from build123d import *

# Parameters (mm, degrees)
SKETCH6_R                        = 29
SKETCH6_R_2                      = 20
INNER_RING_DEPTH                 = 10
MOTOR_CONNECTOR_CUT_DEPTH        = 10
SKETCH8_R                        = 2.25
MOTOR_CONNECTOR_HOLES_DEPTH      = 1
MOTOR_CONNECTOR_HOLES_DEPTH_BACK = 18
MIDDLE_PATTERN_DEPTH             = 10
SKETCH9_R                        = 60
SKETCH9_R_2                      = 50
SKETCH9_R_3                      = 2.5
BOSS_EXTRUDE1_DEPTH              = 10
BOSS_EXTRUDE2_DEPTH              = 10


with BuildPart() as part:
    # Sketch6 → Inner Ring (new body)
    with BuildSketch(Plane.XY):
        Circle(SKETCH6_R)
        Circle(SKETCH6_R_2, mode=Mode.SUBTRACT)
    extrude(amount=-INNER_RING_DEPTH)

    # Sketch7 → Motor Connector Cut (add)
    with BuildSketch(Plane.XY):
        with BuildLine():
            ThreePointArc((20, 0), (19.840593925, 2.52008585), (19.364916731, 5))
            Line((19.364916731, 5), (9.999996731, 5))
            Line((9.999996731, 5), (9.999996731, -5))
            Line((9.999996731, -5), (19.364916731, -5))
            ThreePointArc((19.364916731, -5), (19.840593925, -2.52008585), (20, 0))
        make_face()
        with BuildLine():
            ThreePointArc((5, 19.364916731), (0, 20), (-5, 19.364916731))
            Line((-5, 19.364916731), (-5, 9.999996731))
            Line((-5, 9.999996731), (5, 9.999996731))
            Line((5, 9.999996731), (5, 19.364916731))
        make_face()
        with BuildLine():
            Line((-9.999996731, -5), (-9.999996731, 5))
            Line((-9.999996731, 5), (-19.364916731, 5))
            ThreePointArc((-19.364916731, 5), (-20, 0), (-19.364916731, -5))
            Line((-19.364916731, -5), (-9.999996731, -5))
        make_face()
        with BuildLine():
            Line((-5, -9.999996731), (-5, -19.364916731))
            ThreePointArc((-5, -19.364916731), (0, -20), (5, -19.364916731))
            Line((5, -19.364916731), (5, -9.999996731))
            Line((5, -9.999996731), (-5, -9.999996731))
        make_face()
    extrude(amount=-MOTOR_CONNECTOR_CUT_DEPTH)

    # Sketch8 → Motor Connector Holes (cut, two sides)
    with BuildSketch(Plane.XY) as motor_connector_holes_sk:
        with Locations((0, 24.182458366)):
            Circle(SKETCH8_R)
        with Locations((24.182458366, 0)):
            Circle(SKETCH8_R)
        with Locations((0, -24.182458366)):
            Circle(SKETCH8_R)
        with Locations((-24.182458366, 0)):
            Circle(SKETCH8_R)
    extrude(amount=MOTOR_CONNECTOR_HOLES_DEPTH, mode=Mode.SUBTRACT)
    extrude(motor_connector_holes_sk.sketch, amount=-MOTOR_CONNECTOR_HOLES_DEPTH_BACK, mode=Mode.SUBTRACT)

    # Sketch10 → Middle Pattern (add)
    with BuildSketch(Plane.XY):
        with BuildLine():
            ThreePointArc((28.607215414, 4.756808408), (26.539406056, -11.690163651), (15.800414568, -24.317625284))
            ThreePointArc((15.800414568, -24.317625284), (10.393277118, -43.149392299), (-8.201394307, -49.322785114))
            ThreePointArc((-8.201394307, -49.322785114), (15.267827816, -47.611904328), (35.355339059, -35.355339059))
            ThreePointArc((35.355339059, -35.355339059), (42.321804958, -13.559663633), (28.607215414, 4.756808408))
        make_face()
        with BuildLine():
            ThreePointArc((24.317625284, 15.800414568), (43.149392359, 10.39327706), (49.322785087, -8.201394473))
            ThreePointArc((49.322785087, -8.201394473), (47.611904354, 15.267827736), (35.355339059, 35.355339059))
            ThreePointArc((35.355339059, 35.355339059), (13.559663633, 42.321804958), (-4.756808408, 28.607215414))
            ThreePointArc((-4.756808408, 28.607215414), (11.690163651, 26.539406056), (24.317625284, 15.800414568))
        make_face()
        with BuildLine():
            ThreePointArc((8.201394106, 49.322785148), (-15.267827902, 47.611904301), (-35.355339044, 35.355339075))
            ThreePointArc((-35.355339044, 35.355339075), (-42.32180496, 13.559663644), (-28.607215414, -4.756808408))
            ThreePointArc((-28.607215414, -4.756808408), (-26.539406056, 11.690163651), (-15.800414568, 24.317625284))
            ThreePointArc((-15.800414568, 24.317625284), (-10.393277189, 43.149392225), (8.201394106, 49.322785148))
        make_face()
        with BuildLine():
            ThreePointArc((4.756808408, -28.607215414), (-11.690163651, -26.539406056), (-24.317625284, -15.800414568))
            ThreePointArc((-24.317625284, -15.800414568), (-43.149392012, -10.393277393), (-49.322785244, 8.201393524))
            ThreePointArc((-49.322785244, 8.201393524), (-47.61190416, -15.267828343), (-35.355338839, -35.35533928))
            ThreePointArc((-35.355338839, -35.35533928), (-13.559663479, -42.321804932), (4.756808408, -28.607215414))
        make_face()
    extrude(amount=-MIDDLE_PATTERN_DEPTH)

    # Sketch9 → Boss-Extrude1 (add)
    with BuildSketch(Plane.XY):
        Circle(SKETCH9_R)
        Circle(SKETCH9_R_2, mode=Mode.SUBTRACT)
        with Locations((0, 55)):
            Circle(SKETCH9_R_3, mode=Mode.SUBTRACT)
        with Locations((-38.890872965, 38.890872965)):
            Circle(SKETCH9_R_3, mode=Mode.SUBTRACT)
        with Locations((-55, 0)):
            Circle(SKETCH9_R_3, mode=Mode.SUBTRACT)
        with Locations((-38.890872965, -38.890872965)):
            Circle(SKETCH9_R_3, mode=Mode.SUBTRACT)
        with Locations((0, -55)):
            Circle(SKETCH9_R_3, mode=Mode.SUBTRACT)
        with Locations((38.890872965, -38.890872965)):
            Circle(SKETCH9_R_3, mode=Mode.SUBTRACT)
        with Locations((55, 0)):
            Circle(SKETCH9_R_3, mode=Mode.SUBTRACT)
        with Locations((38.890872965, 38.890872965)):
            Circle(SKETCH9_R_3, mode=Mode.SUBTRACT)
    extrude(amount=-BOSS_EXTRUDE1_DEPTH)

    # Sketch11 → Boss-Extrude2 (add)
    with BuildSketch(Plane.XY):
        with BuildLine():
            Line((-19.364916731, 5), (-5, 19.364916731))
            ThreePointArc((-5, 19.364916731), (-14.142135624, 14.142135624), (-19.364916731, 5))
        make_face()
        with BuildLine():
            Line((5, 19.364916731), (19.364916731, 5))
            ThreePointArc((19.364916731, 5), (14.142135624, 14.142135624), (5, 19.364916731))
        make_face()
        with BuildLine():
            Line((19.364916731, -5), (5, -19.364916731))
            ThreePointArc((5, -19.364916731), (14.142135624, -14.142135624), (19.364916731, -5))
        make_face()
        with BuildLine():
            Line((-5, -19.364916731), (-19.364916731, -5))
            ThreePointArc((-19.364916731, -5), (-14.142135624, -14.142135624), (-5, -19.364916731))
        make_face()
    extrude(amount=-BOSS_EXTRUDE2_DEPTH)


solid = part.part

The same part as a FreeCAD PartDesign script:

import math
import FreeCAD as App
import Part
import Sketcher

V = App.Vector

doc = App.newDocument("Part")
body = doc.addObject("PartDesign::Body", "Body")

# Sketch on XY plane
sketch1 = doc.addObject("Sketcher::SketchObject", "Sketch")
body.addObject(sketch1)
sketch1.AttachmentSupport = (doc.XY_Plane, [""])
sketch1.MapMode = "FlatFace"
sketch1.addGeometry(Part.Circle(V(0, 0, 0), V(0, 0, 1), 29), False)
sketch1.addGeometry(Part.Circle(V(0, 0, 0), V(0, 0, 1), 20), False)
sketch1.addConstraint(Sketcher.Constraint("Coincident", 0, 3, -1, 1))
sketch1.addConstraint(Sketcher.Constraint("Coincident", 1, 3, -1, 1))
sketch1.addConstraint(Sketcher.Constraint("Diameter", 0, 58.0))
sketch1.addConstraint(Sketcher.Constraint("Diameter", 1, 40.0))
pad1 = doc.addObject("PartDesign::Pad", "Pad")
body.addObject(pad1)
pad1.Profile = sketch1
pad1.Length = 10
pad1.Reversed = True

# Sketch on XY plane
sketch2 = doc.addObject("Sketcher::SketchObject", "Sketch001")
body.addObject(sketch2)
sketch2.AttachmentSupport = (doc.XY_Plane, [""])
sketch2.MapMode = "FlatFace"
sketch2.addGeometry(Part.ArcOfCircle(Part.Circle(V(0, 0, 0), V(0, 0, 1), 20), math.radians(0), math.radians(14.477512)), False)
sketch2.addGeometry(Part.LineSegment(V(19.364917, 5, 0), V(9.999997, 5, 0)), False)
sketch2.addGeometry(Part.LineSegment(V(9.999997, 5, 0), V(9.999997, -5, 0)), False)
sketch2.addGeometry(Part.LineSegment(V(9.999997, -5, 0), V(19.364917, -5, 0)), False)
sketch2.addGeometry(Part.ArcOfCircle(Part.Circle(V(0, 0, 0), V(0, 0, 1), 20), math.radians(-14.477512), math.radians(0)), False)
sketch2.addGeometry(Part.ArcOfCircle(Part.Circle(V(0, 0, 0), V(0, 0, 1), 20), math.radians(75.522488), math.radians(104.477512)), False)
sketch2.addGeometry(Part.LineSegment(V(-5, 19.364917, 0), V(-5, 9.999997, 0)), False)
sketch2.addGeometry(Part.LineSegment(V(-5, 9.999997, 0), V(5, 9.999997, 0)), False)
sketch2.addGeometry(Part.LineSegment(V(5, 9.999997, 0), V(5, 19.364917, 0)), False)
sketch2.addGeometry(Part.LineSegment(V(-9.999997, -5, 0), V(-9.999997, 5, 0)), False)
sketch2.addGeometry(Part.LineSegment(V(-9.999997, 5, 0), V(-19.364917, 5, 0)), False)
sketch2.addGeometry(Part.ArcOfCircle(Part.Circle(V(0, 0, 0), V(0, 0, 1), 20), math.radians(165.522488), math.radians(194.477512)), False)
sketch2.addGeometry(Part.LineSegment(V(-19.364917, -5, 0), V(-9.999997, -5, 0)), False)
sketch2.addGeometry(Part.LineSegment(V(-5, -9.999997, 0), V(-5, -19.364917, 0)), False)
sketch2.addGeometry(Part.ArcOfCircle(Part.Circle(V(0, 0, 0), V(0, 0, 1), 20), math.radians(-104.477512), math.radians(-75.522488)), False)
sketch2.addGeometry(Part.LineSegment(V(5, -19.364917, 0), V(5, -9.999997, 0)), False)
sketch2.addGeometry(Part.LineSegment(V(5, -9.999997, 0), V(-5, -9.999997, 0)), False)
sketch2.addConstraint(Sketcher.Constraint("Coincident", 0, 2, 1, 1))
sketch2.addConstraint(Sketcher.Constraint("Coincident", 1, 2, 2, 1))
sketch2.addConstraint(Sketcher.Constraint("Coincident", 2, 2, 3, 1))
sketch2.addConstraint(Sketcher.Constraint("Coincident", 3, 2, 4, 1))
sketch2.addConstraint(Sketcher.Constraint("Tangent", 4, 2, 0, 1))
sketch2.addConstraint(Sketcher.Constraint("Coincident", 5, 2, 6, 1))
sketch2.addConstraint(Sketcher.Constraint("Coincident", 6, 2, 7, 1))
sketch2.addConstraint(Sketcher.Constraint("Coincident", 7, 2, 8, 1))
sketch2.addConstraint(Sketcher.Constraint("Coincident", 8, 2, 5, 1))
sketch2.addConstraint(Sketcher.Constraint("Coincident", 9, 2, 10, 1))
sketch2.addConstraint(Sketcher.Constraint("Coincident", 10, 2, 11, 1))
sketch2.addConstraint(Sketcher.Constraint("Coincident", 11, 2, 12, 1))
sketch2.addConstraint(Sketcher.Constraint("Coincident", 12, 2, 9, 1))
sketch2.addConstraint(Sketcher.Constraint("Coincident", 13, 2, 14, 1))
sketch2.addConstraint(Sketcher.Constraint("Coincident", 14, 2, 15, 1))
sketch2.addConstraint(Sketcher.Constraint("Coincident", 15, 2, 16, 1))
sketch2.addConstraint(Sketcher.Constraint("Coincident", 16, 2, 13, 1))
sketch2.addConstraint(Sketcher.Constraint("Horizontal", 1))
sketch2.addConstraint(Sketcher.Constraint("Vertical", 2))
sketch2.addConstraint(Sketcher.Constraint("Horizontal", 3))
sketch2.addConstraint(Sketcher.Constraint("Vertical", 6))
sketch2.addConstraint(Sketcher.Constraint("Horizontal", 7))
sketch2.addConstraint(Sketcher.Constraint("Vertical", 8))
sketch2.addConstraint(Sketcher.Constraint("Vertical", 9))
sketch2.addConstraint(Sketcher.Constraint("Horizontal", 10))
sketch2.addConstraint(Sketcher.Constraint("Horizontal", 12))
sketch2.addConstraint(Sketcher.Constraint("Vertical", 13))
sketch2.addConstraint(Sketcher.Constraint("Vertical", 15))
sketch2.addConstraint(Sketcher.Constraint("Horizontal", 16))
sketch2.addConstraint(Sketcher.Constraint("Coincident", 0, 3, -1, 1))
sketch2.addConstraint(Sketcher.Constraint("Coincident", 5, 3, -1, 1))
sketch2.addConstraint(Sketcher.Constraint("Coincident", 11, 3, -1, 1))
sketch2.addConstraint(Sketcher.Constraint("Coincident", 14, 3, -1, 1))
sketch2.addConstraint(Sketcher.Constraint("Equal", 0, 4))
sketch2.addConstraint(Sketcher.Constraint("Equal", 4, 5))
sketch2.addConstraint(Sketcher.Constraint("Equal", 5, 11))
sketch2.addConstraint(Sketcher.Constraint("Equal", 11, 14))
sketch2.addConstraint(Sketcher.Constraint("Symmetric", 2, 2, 9, 2, -1, 1))
sketch2.addConstraint(Sketcher.Constraint("Symmetric", 6, 2, 15, 2, -1, 1))
sketch2.addConstraint(Sketcher.Constraint("PointOnObject", 4, 2, -1))
sketch2.addConstraint(Sketcher.Constraint("Horizontal", 5, 2, 8, 2))
sketch2.addConstraint(Sketcher.Constraint("Horizontal", 1, 2, 9, 2))
sketch2.addConstraint(Sketcher.Constraint("Horizontal", 3, 2, 11, 2))
sketch2.addConstraint(Sketcher.Constraint("Horizontal", 13, 2, 14, 2))
sketch2.addConstraint(Sketcher.Constraint("Equal", 16, 2))
sketch2.addConstraint(Sketcher.Constraint("Equal", 12, 6))
sketch2.addConstraint(Sketcher.Constraint("Radius", 0, 20.0))
sketch2.addConstraint(Sketcher.Constraint("DistanceX", 7, 1, 7, 2, 10.0))
sketch2.addConstraint(Sketcher.Constraint("DistanceX", 1, 2, 1, 1, 9.36492))
pad2 = doc.addObject("PartDesign::Pad", "Pad001")
body.addObject(pad2)
pad2.Profile = sketch2
pad2.Length = 10
pad2.Reversed = True

# Sketch on XY plane
sketch3 = doc.addObject("Sketcher::SketchObject", "Sketch002")
body.addObject(sketch3)
sketch3.AttachmentSupport = (doc.XY_Plane, [""])
sketch3.MapMode = "FlatFace"
sketch3.addGeometry(Part.Circle(V(0, 24.182458, 0), V(0, 0, 1), 2.25), False)
sketch3.addGeometry(Part.Circle(V(24.182458, 0, 0), V(0, 0, 1), 2.25), False)
sketch3.addGeometry(Part.Circle(V(0, -24.182458, 0), V(0, 0, 1), 2.25), False)
sketch3.addGeometry(Part.Circle(V(-24.182458, 0, 0), V(0, 0, 1), 2.25), False)
sketch3.addConstraint(Sketcher.Constraint("Equal", 0, 1))
sketch3.addConstraint(Sketcher.Constraint("Equal", 1, 2))
sketch3.addConstraint(Sketcher.Constraint("Equal", 2, 3))
sketch3.addConstraint(Sketcher.Constraint("Symmetric", 0, 3, 2, 3, -1, 1))
sketch3.addConstraint(Sketcher.Constraint("Symmetric", 1, 3, 3, 3, -1, 1))
sketch3.addConstraint(Sketcher.Constraint("PointOnObject", 0, 3, -2))
sketch3.addConstraint(Sketcher.Constraint("PointOnObject", 1, 3, -1))
sketch3.addConstraint(Sketcher.Constraint("Diameter", 0, 4.5))
sketch3.addConstraint(Sketcher.Constraint("DistanceY", -1, 1, 0, 3, 24.182458))
sketch3.addConstraint(Sketcher.Constraint("DistanceX", -1, 1, 1, 3, 24.182458))
pocket1 = doc.addObject("PartDesign::Pocket", "Pocket")
body.addObject(pocket1)
pocket1.Profile = sketch3
pocket1.Type = "ThroughAll"
pocket1.Midplane = True

# Sketch on XY plane
sketch4 = doc.addObject("Sketcher::SketchObject", "Sketch003")
body.addObject(sketch4)
sketch4.AttachmentSupport = (doc.XY_Plane, [""])
sketch4.MapMode = "FlatFace"
sketch4.addGeometry(Part.ArcOfCircle(Part.Circle(V(0, 0, 0), V(0, 0, 1), 29), math.radians(-56.986141), math.radians(9.440766)), False)
sketch4.addGeometry(Part.ArcOfCircle(Part.Circle(V(-4.756808, -28.607215, 0), V(0, 0, 1), 21), math.radians(-99.440768), math.radians(11.786546)), False)
sketch4.addGeometry(Part.ArcOfCircle(Part.Circle(V(0, 0, 0), V(0, 0, 1), 50), math.radians(-99.440767), math.radians(-45)), False)
sketch4.addGeometry(Part.ArcOfCircle(Part.Circle(V(17.701562, -17.701562, 0), V(0, 0, 1), 24.966211), math.radians(-45), math.radians(64.099062)), False)
sketch4.addGeometry(Part.ArcOfCircle(Part.Circle(V(28.607215, -4.756808, 0), V(0, 0, 1), 21), math.radians(-9.440768), math.radians(101.786546)), False)
sketch4.addGeometry(Part.ArcOfCircle(Part.Circle(V(0, 0, 0), V(0, 0, 1), 50), math.radians(-9.440767), math.radians(45)), False)
sketch4.addGeometry(Part.ArcOfCircle(Part.Circle(V(17.701562, 17.701562, 0), V(0, 0, 1), 24.966211), math.radians(45), math.radians(154.099062)), False)
sketch4.addGeometry(Part.ArcOfCircle(Part.Circle(V(0, 0, 0), V(0, 0, 1), 29), math.radians(33.013859), math.radians(99.440766)), False)
sketch4.addGeometry(Part.ArcOfCircle(Part.Circle(V(0, 0, 0), V(0, 0, 1), 50), math.radians(80.559233), math.radians(135)), False)
sketch4.addGeometry(Part.ArcOfCircle(Part.Circle(V(-17.701562, 17.701562, 0), V(0, 0, 1), 24.966211), math.radians(135), math.radians(244.099062)), False)
sketch4.addGeometry(Part.ArcOfCircle(Part.Circle(V(0, 0, 0), V(0, 0, 1), 29), math.radians(123.013859), math.radians(189.440766)), False)
sketch4.addGeometry(Part.ArcOfCircle(Part.Circle(V(4.756808, 28.607215, 0), V(0, 0, 1), 21), math.radians(80.559233), math.radians(191.786546)), False)
sketch4.addGeometry(Part.ArcOfCircle(Part.Circle(V(0, 0, 0), V(0, 0, 1), 29), math.radians(-146.986141), math.radians(-80.559234)), False)
sketch4.addGeometry(Part.ArcOfCircle(Part.Circle(V(-28.607215, 4.756808, 0), V(0, 0, 1), 21), math.radians(170.559234), math.radians(281.786546)), False)
sketch4.addGeometry(Part.ArcOfCircle(Part.Circle(V(0, 0, 0), V(0, 0, 1), 50), math.radians(170.559234), math.radians(225)), False)
sketch4.addGeometry(Part.ArcOfCircle(Part.Circle(V(-17.701562, -17.701562, 0), V(0, 0, 1), 24.966211), math.radians(-134.999999), math.radians(-25.900938)), False)
sketch4.addConstraint(Sketcher.Constraint("Coincident", 0, 1, 1, 2))
sketch4.addConstraint(Sketcher.Constraint("Tangent", 1, 1, 2, 1))
sketch4.addConstraint(Sketcher.Constraint("Tangent", 2, 2, 3, 1))
sketch4.addConstraint(Sketcher.Constraint("Coincident", 3, 2, 0, 2))
sketch4.addConstraint(Sketcher.Constraint("Tangent", 4, 1, 5, 1))
sketch4.addConstraint(Sketcher.Constraint("Tangent", 5, 2, 6, 1))
sketch4.addConstraint(Sketcher.Constraint("Coincident", 6, 2, 7, 2))
sketch4.addConstraint(Sketcher.Constraint("Coincident", 7, 1, 4, 2))
sketch4.addConstraint(Sketcher.Constraint("Tangent", 8, 2, 9, 1))
sketch4.addConstraint(Sketcher.Constraint("Coincident", 9, 2, 10, 2))
sketch4.addConstraint(Sketcher.Constraint("Coincident", 10, 1, 11, 2))
sketch4.addConstraint(Sketcher.Constraint("Tangent", 11, 1, 8, 1))
sketch4.addConstraint(Sketcher.Constraint("Coincident", 12, 1, 13, 2))
sketch4.addConstraint(Sketcher.Constraint("Tangent", 13, 1, 14, 1))
sketch4.addConstraint(Sketcher.Constraint("Tangent", 14, 2, 15, 1))
sketch4.addConstraint(Sketcher.Constraint("Coincident", 15, 2, 12, 2))
sketch4.addConstraint(Sketcher.Constraint("Coincident", 0, 3, -1, 1))
sketch4.addConstraint(Sketcher.Constraint("Coincident", 2, 3, -1, 1))
sketch4.addConstraint(Sketcher.Constraint("Coincident", 5, 3, -1, 1))
sketch4.addConstraint(Sketcher.Constraint("Coincident", 7, 3, -1, 1))
sketch4.addConstraint(Sketcher.Constraint("Coincident", 8, 3, -1, 1))
sketch4.addConstraint(Sketcher.Constraint("Coincident", 10, 3, -1, 1))
sketch4.addConstraint(Sketcher.Constraint("Coincident", 12, 3, -1, 1))
sketch4.addConstraint(Sketcher.Constraint("Coincident", 14, 3, -1, 1))
sketch4.addConstraint(Sketcher.Constraint("Equal", 1, 4))
sketch4.addConstraint(Sketcher.Constraint("Equal", 2, 5))
sketch4.addConstraint(Sketcher.Constraint("Equal", 3, 6))
sketch4.addConstraint(Sketcher.Constraint("Equal", 0, 7))
sketch4.addConstraint(Sketcher.Constraint("Equal", 5, 8))
sketch4.addConstraint(Sketcher.Constraint("Equal", 6, 9))
sketch4.addConstraint(Sketcher.Constraint("Equal", 7, 10))
sketch4.addConstraint(Sketcher.Constraint("Equal", 4, 11))
sketch4.addConstraint(Sketcher.Constraint("Equal", 10, 12))
sketch4.addConstraint(Sketcher.Constraint("Equal", 11, 13))
sketch4.addConstraint(Sketcher.Constraint("Equal", 8, 14))
sketch4.addConstraint(Sketcher.Constraint("Equal", 9, 15))
sketch4.addConstraint(Sketcher.Constraint("Horizontal", 6, 3, 9, 3))
sketch4.addConstraint(Sketcher.Constraint("Horizontal", 3, 3, 15, 3))
sketch4.addConstraint(Sketcher.Constraint("Horizontal", 13, 3, 3, 2))
sketch4.addConstraint(Sketcher.Constraint("Horizontal", 11, 3, 6, 2))
sketch4.addConstraint(Sketcher.Constraint("Horizontal", 4, 3, 9, 2))
sketch4.addConstraint(Sketcher.Constraint("Horizontal", 1, 3, 15, 2))
sketch4.addConstraint(Sketcher.Constraint("Vertical", 3, 3, 6, 3))
sketch4.addConstraint(Sketcher.Constraint("Vertical", 4, 3, 3, 2))
sketch4.addConstraint(Sketcher.Constraint("Radius", 0, 29.0))
sketch4.addConstraint(Sketcher.Constraint("Radius", 1, 21.0))
sketch4.addConstraint(Sketcher.Constraint("Radius", 3, 24.966211))
sketch4.addConstraint(Sketcher.Constraint("DistanceX", 0, 1, 4, 3, 12.806801))
pad3 = doc.addObject("PartDesign::Pad", "Pad002")
body.addObject(pad3)
pad3.Profile = sketch4
pad3.Length = 10
pad3.Reversed = True

# Sketch on XY plane
sketch5 = doc.addObject("Sketcher::SketchObject", "Sketch004")
body.addObject(sketch5)
sketch5.AttachmentSupport = (doc.XY_Plane, [""])
sketch5.MapMode = "FlatFace"
sketch5.addGeometry(Part.Circle(V(0, 0, 0), V(0, 0, 1), 60), False)
sketch5.addGeometry(Part.Circle(V(-38.890873, -38.890873, 0), V(0, 0, 1), 2.5), False)
sketch5.addGeometry(Part.Circle(V(0, -55, 0), V(0, 0, 1), 2.5), False)
sketch5.addGeometry(Part.Circle(V(38.890873, -38.890873, 0), V(0, 0, 1), 2.5), False)
sketch5.addGeometry(Part.Circle(V(-55, 0, 0), V(0, 0, 1), 2.5), False)
sketch5.addGeometry(Part.Circle(V(-38.890873, 38.890873, 0), V(0, 0, 1), 2.5), False)
sketch5.addGeometry(Part.Circle(V(0, 0, 0), V(0, 0, 1), 50), False)
sketch5.addGeometry(Part.Circle(V(55, 0, 0), V(0, 0, 1), 2.5), False)
sketch5.addGeometry(Part.Circle(V(0, 55, 0), V(0, 0, 1), 2.5), False)
sketch5.addGeometry(Part.Circle(V(38.890873, 38.890873, 0), V(0, 0, 1), 2.5), False)
sketch5.addConstraint(Sketcher.Constraint("Coincident", 0, 3, -1, 1))
sketch5.addConstraint(Sketcher.Constraint("Coincident", 6, 3, -1, 1))
sketch5.addConstraint(Sketcher.Constraint("Equal", 1, 2))
sketch5.addConstraint(Sketcher.Constraint("Equal", 2, 3))
sketch5.addConstraint(Sketcher.Constraint("Equal", 3, 4))
sketch5.addConstraint(Sketcher.Constraint("Equal", 4, 5))
sketch5.addConstraint(Sketcher.Constraint("Equal", 5, 7))
sketch5.addConstraint(Sketcher.Constraint("Equal", 7, 8))
sketch5.addConstraint(Sketcher.Constraint("Equal", 8, 9))
sketch5.addConstraint(Sketcher.Constraint("Symmetric", 3, 3, 5, 3, -1, 1))
sketch5.addConstraint(Sketcher.Constraint("Symmetric", 4, 3, 7, 3, -1, 1))
sketch5.addConstraint(Sketcher.Constraint("Symmetric", 2, 3, 8, 3, -1, 1))
sketch5.addConstraint(Sketcher.Constraint("Symmetric", 1, 3, 9, 3, -1, 1))
sketch5.addConstraint(Sketcher.Constraint("Symmetric", 1, 3, 3, 3, -2))
sketch5.addConstraint(Sketcher.Constraint("PointOnObject", 2, 3, -2))
sketch5.addConstraint(Sketcher.Constraint("PointOnObject", 4, 3, -1))
sketch5.addConstraint(Sketcher.Constraint("Diameter", 0, 120.0))
sketch5.addConstraint(Sketcher.Constraint("Diameter", 1, 5.0))
sketch5.addConstraint(Sketcher.Constraint("Diameter", 6, 100.0))
sketch5.addConstraint(Sketcher.Constraint("DistanceY", 2, 3, -1, 1, 55.0))
sketch5.addConstraint(Sketcher.Constraint("DistanceX", 4, 3, -1, 1, 55.0))
sketch5.addConstraint(Sketcher.Constraint("DistanceX", 1, 3, -1, 1, 38.890873))
sketch5.addConstraint(Sketcher.Constraint("DistanceY", 1, 3, -1, 1, 38.890873))
pad4 = doc.addObject("PartDesign::Pad", "Pad003")
body.addObject(pad4)
pad4.Profile = sketch5
pad4.Length = 10
pad4.Reversed = True

# Sketch on XY plane
sketch6 = doc.addObject("Sketcher::SketchObject", "Sketch005")
body.addObject(sketch6)
sketch6.AttachmentSupport = (doc.XY_Plane, [""])
sketch6.MapMode = "FlatFace"
sketch6.addGeometry(Part.LineSegment(V(-19.364917, 5, 0), V(-5, 19.364917, 0)), False)
sketch6.addGeometry(Part.ArcOfCircle(Part.Circle(V(0, 0, 0), V(0, 0, 1), 20), math.radians(104.477512), math.radians(165.522488)), False)
sketch6.addGeometry(Part.LineSegment(V(5, 19.364917, 0), V(19.364917, 5, 0)), False)
sketch6.addGeometry(Part.ArcOfCircle(Part.Circle(V(0, 0, 0), V(0, 0, 1), 20), math.radians(14.477512), math.radians(75.522488)), False)
sketch6.addGeometry(Part.LineSegment(V(19.364917, -5, 0), V(5, -19.364917, 0)), False)
sketch6.addGeometry(Part.ArcOfCircle(Part.Circle(V(0, 0, 0), V(0, 0, 1), 20), math.radians(-75.522488), math.radians(-14.477512)), False)
sketch6.addGeometry(Part.LineSegment(V(-5, -19.364917, 0), V(-19.364917, -5, 0)), False)
sketch6.addGeometry(Part.ArcOfCircle(Part.Circle(V(0, 0, 0), V(0, 0, 1), 20), math.radians(-165.522488), math.radians(-104.477512)), False)
sketch6.addConstraint(Sketcher.Constraint("Coincident", 0, 1, 1, 2))
sketch6.addConstraint(Sketcher.Constraint("Coincident", 1, 1, 0, 2))
sketch6.addConstraint(Sketcher.Constraint("Coincident", 2, 1, 3, 2))
sketch6.addConstraint(Sketcher.Constraint("Coincident", 3, 1, 2, 2))
sketch6.addConstraint(Sketcher.Constraint("Coincident", 4, 1, 5, 2))
sketch6.addConstraint(Sketcher.Constraint("Coincident", 5, 1, 4, 2))
sketch6.addConstraint(Sketcher.Constraint("Coincident", 6, 1, 7, 2))
sketch6.addConstraint(Sketcher.Constraint("Coincident", 7, 1, 6, 2))
sketch6.addConstraint(Sketcher.Constraint("Coincident", 1, 3, -1, 1))
sketch6.addConstraint(Sketcher.Constraint("Coincident", 3, 3, -1, 1))
sketch6.addConstraint(Sketcher.Constraint("Coincident", 5, 3, -1, 1))
sketch6.addConstraint(Sketcher.Constraint("Coincident", 7, 3, -1, 1))
sketch6.addConstraint(Sketcher.Constraint("Equal", 1, 3))
sketch6.addConstraint(Sketcher.Constraint("Equal", 3, 5))
sketch6.addConstraint(Sketcher.Constraint("Equal", 5, 7))
sketch6.addConstraint(Sketcher.Constraint("Perpendicular", 0, 2))
sketch6.addConstraint(Sketcher.Constraint("Perpendicular", 2, 4))
sketch6.addConstraint(Sketcher.Constraint("Perpendicular", 4, 6))
sketch6.addConstraint(Sketcher.Constraint("Horizontal", 1, 1, 2, 1))
sketch6.addConstraint(Sketcher.Constraint("Horizontal", 0, 1, 3, 1))
sketch6.addConstraint(Sketcher.Constraint("Horizontal", 5, 1, 6, 1))
sketch6.addConstraint(Sketcher.Constraint("Vertical", 3, 1, 4, 1))
sketch6.addConstraint(Sketcher.Constraint("Radius", 1, 20.0))
sketch6.addConstraint(Sketcher.Constraint("DistanceY", -1, 1, 0, 1, 5.0))
pad5 = doc.addObject("PartDesign::Pad", "Pad004")
body.addObject(pad5)
pad5.Profile = sketch6
pad5.Length = 10
pad5.Reversed = True

doc.recompute()
